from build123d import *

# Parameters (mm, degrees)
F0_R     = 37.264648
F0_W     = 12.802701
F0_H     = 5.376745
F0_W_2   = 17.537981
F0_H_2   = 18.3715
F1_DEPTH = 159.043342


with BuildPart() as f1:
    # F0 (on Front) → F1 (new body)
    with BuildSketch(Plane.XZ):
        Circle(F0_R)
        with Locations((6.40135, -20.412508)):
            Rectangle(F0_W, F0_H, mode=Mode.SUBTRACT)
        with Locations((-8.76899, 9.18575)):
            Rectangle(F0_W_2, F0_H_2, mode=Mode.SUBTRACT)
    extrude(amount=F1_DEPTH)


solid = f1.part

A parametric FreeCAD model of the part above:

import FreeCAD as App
import Part
import Sketcher

V = App.Vector
Q = App.Units.Quantity

doc = App.newDocument("Part")
body = doc.addObject("PartDesign::Body", "Body")

# Sketch on XZ plane
sketch1 = body.newObject("Sketcher::SketchObject", "Sketch")
sketch1.AttachmentSupport = (doc.getObject("XZ_Plane"), [""])
sketch1.MapMode = "FlatFace"
sketch1.addGeometry([
    Part.Circle(V(0, 0, 0), V(0, 0, 1), 37.264648),  # 0
    Part.LineSegment(V(12.802701, -23.10088, 0), V(0, -23.10088, 0)),  # 1
    Part.LineSegment(V(0, -23.10088, 0), V(0, -17.724135, 0)),  # 2
    Part.LineSegment(V(0, -17.724135, 0), V(12.802701, -17.724135, 0)),  # 3
    Part.LineSegment(V(12.802701, -17.724135, 0), V(12.802701, -23.10088, 0)),  # 4
    Part.LineSegment(V(0, 0, 0), V(-17.53798, 0, 0)),  # 5
    Part.LineSegment(V(-17.53798, 0, 0), V(-17.53798, 18.3715, 0)),  # 6
    Part.LineSegment(V(-17.53798, 18.3715, 0), V(0, 18.3715, 0)),  # 7
    Part.LineSegment(V(0, 18.3715, 0), V(0, 0, 0)),  # 8
], False)
sketch1.addConstraint([
    Sketcher.Constraint("Coincident", 1, 2, 2, 1),
    Sketcher.Constraint("Coincident", 2, 2, 3, 1),
    Sketcher.Constraint("Coincident", 3, 2, 4, 1),
    Sketcher.Constraint("Coincident", 4, 2, 1, 1),
    Sketcher.Constraint("Coincident", 5, 2, 6, 1),
    Sketcher.Constraint("Coincident", 6, 2, 7, 1),
    Sketcher.Constraint("Coincident", 7, 2, 8, 1),
    Sketcher.Constraint("Coincident", 8, 2, 5, 1),
    Sketcher.Constraint("Horizontal", 1),
    Sketcher.Constraint("Vertical", 2),
    Sketcher.Constraint("Horizontal", 3),
    Sketcher.Constraint("Vertical", 4),
    Sketcher.Constraint("Horizontal", 5),
    Sketcher.Constraint("Vertical", 6),
    Sketcher.Constraint("Horizontal", 7),
    Sketcher.Constraint("Vertical", 8),
    Sketcher.Constraint("Coincident", 0, 3, -1, 1),
    Sketcher.Constraint("Coincident", 8, 2, -1, 1),
    Sketcher.Constraint("PointOnObject", 1, 2, -2),
    Sketcher.Constraint("Diameter", 0, Q("74.529296 mm")),
    Sketcher.Constraint("DistanceX", 1, 2, 1, 1, Q("12.802701 mm")),
    Sketcher.Constraint("DistanceY", 6, 1, 6, 2, Q("18.3715 mm")),
    Sketcher.Constraint("DistanceX", 5, 2, 5, 1, Q("17.537981 mm")),
    Sketcher.Constraint("DistanceY", 2, 1, 2, 2, Q("5.376745 mm")),
    Sketcher.Constraint("DistanceY", 1, 2, -1, 1, Q("23.10088 mm")),
])
pad1 = body.newObject("PartDesign::Pad", "Pad")
pad1.Profile = sketch1
pad1.Length = 159.043342

doc.recompute()
